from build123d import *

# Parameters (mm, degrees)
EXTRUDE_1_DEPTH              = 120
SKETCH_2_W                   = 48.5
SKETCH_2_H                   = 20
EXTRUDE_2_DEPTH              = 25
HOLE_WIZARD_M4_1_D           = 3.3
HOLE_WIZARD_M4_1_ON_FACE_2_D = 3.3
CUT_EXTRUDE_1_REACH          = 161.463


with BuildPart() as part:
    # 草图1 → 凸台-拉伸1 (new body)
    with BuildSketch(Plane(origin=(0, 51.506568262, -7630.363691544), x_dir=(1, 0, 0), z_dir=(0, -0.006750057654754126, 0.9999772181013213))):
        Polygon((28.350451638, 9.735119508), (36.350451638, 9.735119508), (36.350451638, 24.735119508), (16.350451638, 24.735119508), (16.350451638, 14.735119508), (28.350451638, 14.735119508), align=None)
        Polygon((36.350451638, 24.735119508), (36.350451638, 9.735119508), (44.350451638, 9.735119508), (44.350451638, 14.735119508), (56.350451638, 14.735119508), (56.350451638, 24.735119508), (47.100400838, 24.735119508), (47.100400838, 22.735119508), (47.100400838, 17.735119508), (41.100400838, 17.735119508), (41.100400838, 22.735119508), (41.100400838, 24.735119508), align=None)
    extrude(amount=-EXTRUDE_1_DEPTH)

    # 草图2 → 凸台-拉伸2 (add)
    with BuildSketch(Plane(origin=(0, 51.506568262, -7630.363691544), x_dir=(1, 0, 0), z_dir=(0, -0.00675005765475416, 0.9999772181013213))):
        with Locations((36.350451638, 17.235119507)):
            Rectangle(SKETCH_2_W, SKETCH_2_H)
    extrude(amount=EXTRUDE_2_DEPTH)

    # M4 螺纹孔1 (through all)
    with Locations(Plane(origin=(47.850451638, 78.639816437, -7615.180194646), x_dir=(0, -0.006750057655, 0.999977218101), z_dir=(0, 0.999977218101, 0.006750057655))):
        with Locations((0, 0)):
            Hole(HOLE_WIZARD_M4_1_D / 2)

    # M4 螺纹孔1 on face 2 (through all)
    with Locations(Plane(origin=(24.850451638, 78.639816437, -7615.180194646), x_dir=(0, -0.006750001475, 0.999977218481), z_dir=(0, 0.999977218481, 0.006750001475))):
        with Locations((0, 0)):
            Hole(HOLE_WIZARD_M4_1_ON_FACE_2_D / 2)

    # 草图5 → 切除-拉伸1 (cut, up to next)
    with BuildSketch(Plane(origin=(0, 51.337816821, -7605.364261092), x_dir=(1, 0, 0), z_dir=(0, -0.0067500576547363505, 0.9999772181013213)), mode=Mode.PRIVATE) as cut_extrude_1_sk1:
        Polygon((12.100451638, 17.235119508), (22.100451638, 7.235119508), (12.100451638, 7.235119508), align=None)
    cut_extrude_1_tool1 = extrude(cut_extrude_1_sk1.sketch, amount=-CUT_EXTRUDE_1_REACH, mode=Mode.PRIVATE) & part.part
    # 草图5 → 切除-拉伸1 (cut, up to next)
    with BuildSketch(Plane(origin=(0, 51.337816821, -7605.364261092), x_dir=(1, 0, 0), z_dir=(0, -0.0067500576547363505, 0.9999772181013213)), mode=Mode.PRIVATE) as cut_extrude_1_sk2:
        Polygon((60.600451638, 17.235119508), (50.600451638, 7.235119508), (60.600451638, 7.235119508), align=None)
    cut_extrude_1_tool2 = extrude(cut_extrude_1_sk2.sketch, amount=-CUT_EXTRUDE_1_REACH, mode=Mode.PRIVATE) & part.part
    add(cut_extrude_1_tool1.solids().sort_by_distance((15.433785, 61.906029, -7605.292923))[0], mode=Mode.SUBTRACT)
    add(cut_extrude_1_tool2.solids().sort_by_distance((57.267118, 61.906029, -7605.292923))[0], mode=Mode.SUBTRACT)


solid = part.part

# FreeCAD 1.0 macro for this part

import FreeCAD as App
import Part
import Sketcher
from FreeCAD import Vector

doc = App.newDocument("Part")
body = doc.addObject("PartDesign::Body", "Body")

# Sketch on an angled plane
sketch1 = body.newObject("Sketcher::SketchObject", "Sketch")
sketch1.Placement = App.Placement(Vector(0, 51.506568, -7630.363692), App.Rotation(Vector(1, 0, 0), Vector(0, 0.999977218, 0.006750058), Vector(0, -0.006750058, 0.999977218), "ZXY"))
sketch1.addGeometry([
    Part.LineSegment(Vector(28.4, 9.7, 0), Vector(44.4, 9.7, 0)),  # 0
    Part.LineSegment(Vector(44.4, 9.7, 0), Vector(44.4, 14.7, 0)),  # 1
    Part.LineSegment(Vector(44.4, 14.7, 0), Vector(56.4, 14.7, 0)),  # 2
    Part.LineSegment(Vector(56.4, 14.7, 0), Vector(56.4, 24.7, 0)),  # 3
    Part.LineSegment(Vector(56.4, 24.7, 0), Vector(47.1, 24.7, 0)),  # 4
    Part.LineSegment(Vector(47.1, 24.7, 0), Vector(47.1, 17.7, 0)),  # 5
    Part.LineSegment(Vector(47.1, 17.7, 0), Vector(41.1, 17.7, 0)),  # 6
    Part.LineSegment(Vector(41.1, 17.7, 0), Vector(41.1, 24.7, 0)),  # 7
    Part.LineSegment(Vector(41.1, 24.7, 0), Vector(16.4, 24.7, 0)),  # 8
    Part.LineSegment(Vector(16.4, 24.7, 0), Vector(16.4, 14.7, 0)),  # 9
    Part.LineSegment(Vector(16.4, 14.7, 0), Vector(28.4, 14.7, 0)),  # 10
    Part.LineSegment(Vector(28.4, 14.7, 0), Vector(28.4, 9.7, 0)),  # 11
], False)
sketch1.addConstraint([
    Sketcher.Constraint("Coincident", 0, 2, 1, 1),
    Sketcher.Constraint("Coincident", 1, 2, 2, 1),
    Sketcher.Constraint("Coincident", 2, 2, 3, 1),
    Sketcher.Constraint("Coincident", 3, 2, 4, 1),
    Sketcher.Constraint("Coincident", 4, 2, 5, 1),
    Sketcher.Constraint("Coincident", 5, 2, 6, 1),
    Sketcher.Constraint("Coincident", 6, 2, 7, 1),
    Sketcher.Constraint("Coincident", 7, 2, 8, 1),
    Sketcher.Constraint("Coincident", 8, 2, 9, 1),
    Sketcher.Constraint("Coincident", 9, 2, 10, 1),
    Sketcher.Constraint("Coincident", 10, 2, 11, 1),
    Sketcher.Constraint("Coincident", 11, 2, 0, 1),
    Sketcher.Constraint("Horizontal", 0),
    Sketcher.Constraint("Vertical", 1),
    Sketcher.Constraint("Horizontal", 2),
    Sketcher.Constraint("Vertical", 3),
    Sketcher.Constraint("Horizontal", 4),
    Sketcher.Constraint("Vertical", 5),
    Sketcher.Constraint("Horizontal", 6),
    Sketcher.Constraint("Vertical", 7),
    Sketcher.Constraint("Horizontal", 8),
    Sketcher.Constraint("Vertical", 9),
    Sketcher.Constraint("Horizontal", 10),
    Sketcher.Constraint("Vertical", 11),
    Sketcher.Constraint("Horizontal", 4, 2, 7, 2),
    Sketcher.Constraint("Horizontal", 2, 2, 9, 2),
    Sketcher.Constraint("Equal", 2, 10),
    Sketcher.Constraint("DistanceX", 0, 1, 0, 2, 16.0),
    Sketcher.Constraint("DistanceX", 2, 1, 2, 2, 12.0),
    Sketcher.Constraint("DistanceX", 6, 2, 6, 1, 6.0),
    Sketcher.Constraint("DistanceY", 1, 1, 1, 2, 5.0),
    Sketcher.Constraint("DistanceY", 3, 1, 3, 2, 10.0),
    Sketcher.Constraint("DistanceY", 5, 2, 5, 1, 7.0),
    Sketcher.Constraint("DistanceX", 4, 2, 4, 1, 9.250051),
    Sketcher.Constraint("DistanceX", -1, 1, 4, 2, 47.100401),
    Sketcher.Constraint("DistanceY", -1, 1, 0, 2, 9.73512),
])
pad1 = body.newObject("PartDesign::Pad", "Pad")
pad1.Profile = sketch1
pad1.Length = 120
pad1.Reversed = True

# Sketch on an angled plane
sketch2 = body.newObject("Sketcher::SketchObject", "Sketch001")
sketch2.Placement = App.Placement(Vector(0, 51.506568, -7630.363692), App.Rotation(Vector(1, 0, 0), Vector(0, 0.999977218, 0.006750058), Vector(0, -0.006750058, 0.999977218), "ZXY"))
sketch2.addGeometry([
    Part.LineSegment(Vector(12, 27, 0), Vector(12, 7, 0)),
    Part.LineSegment(Vector(12, 7, 0), Vector(61, 7, 0)),
    Part.LineSegment(Vector(61, 7, 0), Vector(61, 27, 0)),
    Part.LineSegment(Vector(61, 27, 0), Vector(12, 27, 0)),
], False)
sketch2.addConstraint([
    Sketcher.Constraint("Coincident", 0, 2, 1, 1),
    Sketcher.Constraint("Coincident", 1, 2, 2, 1),
    Sketcher.Constraint("Coincident", 2, 2, 3, 1),
    Sketcher.Constraint("Coincident", 3, 2, 0, 1),
    Sketcher.Constraint("Vertical", 0),
    Sketcher.Constraint("Horizontal", 1),
    Sketcher.Constraint("Vertical", 2),
    Sketcher.Constraint("Horizontal", 3),
    Sketcher.Constraint("DistanceY", 0, 2, 0, 1, 20.0),
    Sketcher.Constraint("DistanceX", 1, 1, 1, 2, 48.5),
    Sketcher.Constraint("DistanceX", -1, 1, 0, 2, 12.100452),
    Sketcher.Constraint("DistanceY", -1, 1, 0, 2, 7.23512),
])
pad2 = body.newObject("PartDesign::Pad", "Pad001")
pad2.Profile = sketch2
pad2.Length = 25

# Sketch on an angled plane
sketch3 = body.newObject("Sketcher::SketchObject", "Sketch002")
sketch3.Placement = App.Placement(Vector(0, 27.234499, 0.183839), App.Rotation(Vector(0, -0.006750058, 0.999977218), Vector(1, 0, 0), Vector(0, 0.999977218, 0.006750058), "ZXY"))
sketch3.addGeometry(Part.Circle(Vector(-7615.5, 47.9, 0), Vector(0, 0, 1), 1.6), False)
sketch3.addConstraint([
    Sketcher.Constraint("Diameter", 0, 3.3),
    Sketcher.Constraint("DistanceX", 0, 3, -1, 1, 7615.537528),
    Sketcher.Constraint("DistanceY", -1, 1, 0, 3, 47.850452),
])
doc.recompute()
hole = body.newObject("PartDesign::Hole", "Hole")
hole.Profile = sketch3
hole.ThreadType = "None"
hole.Diameter = 3.3
hole.DepthType = "ThroughAll"

# Sketch on an angled plane
sketch4 = body.newObject("Sketcher::SketchObject", "Sketch003")
sketch4.Placement = App.Placement(Vector(0, 27.234927, 0.18384), App.Rotation(Vector(0, -0.006750001, 0.999977218), Vector(0.999999999, 0, 0), Vector(0, 0.999977218, 0.006750001), "ZXY"))
sketch4.addGeometry(Part.Circle(Vector(-7615.5, 24.9, 0), Vector(0, 0, 1), 1.6), False)
sketch4.addConstraint([
    Sketcher.Constraint("Diameter", 0, 3.3),
    Sketcher.Constraint("DistanceX", 0, 3, -1, 1, 7615.537521),
    Sketcher.Constraint("DistanceY", -1, 1, 0, 3, 24.850452),
])
doc.recompute()
hole2 = body.newObject("PartDesign::Hole", "Hole001")
hole2.Profile = sketch4
hole2.ThreadType = "None"
hole2.Diameter = 3.3
hole2.DepthType = "ThroughAll"

# Sketch on an angled plane
sketch5 = body.newObject("Sketcher::SketchObject", "Sketch004")
sketch5.Placement = App.Placement(Vector(0, 51.337817, -7605.364261), App.Rotation(Vector(1, 0, 0), Vector(0, 0.999977218, 0.006750058), Vector(0, -0.006750058, 0.999977218), "ZXY"))
sketch5.addGeometry([
    Part.LineSegment(Vector(22, 7, 0), Vector(12, 17, 0)),
    Part.LineSegment(Vector(12, 17, 0), Vector(12, 7, 0)),
    Part.LineSegment(Vector(12, 7, 0), Vector(22, 7, 0)),
], False)
sketch5.addConstraint([
    Sketcher.Constraint("Coincident", 0, 2, 1, 1),
    Sketcher.Constraint("Coincident", 1, 2, 2, 1),
    Sketcher.Constraint("Coincident", 2, 2, 0, 1),
    Sketcher.Constraint("Vertical", 1),
    Sketcher.Constraint("Horizontal", 2),
    Sketcher.Constraint("Equal", 2, 1),
    Sketcher.Constraint("DistanceX", 2, 1, 2, 2, 10.0),
    Sketcher.Constraint("DistanceX", -1, 1, 0, 2, 12.100452),
    Sketcher.Constraint("DistanceY", -1, 1, 0, 2, 17.23512),
])
pocket1 = body.newObject("PartDesign::Pocket", "Pocket")
pocket1.Profile = sketch5
pocket1.Type = "UpToFirst"

# Sketch on an angled plane
sketch6 = body.newObject("Sketcher::SketchObject", "Sketch005")
sketch6.Placement = App.Placement(Vector(0, 51.337817, -7605.364261), App.Rotation(Vector(1, 0, 0), Vector(0, 0.999977218, 0.006750058), Vector(0, -0.006750058, 0.999977218), "ZXY"))
sketch6.addGeometry([
    Part.LineSegment(Vector(61, 17, 0), Vector(51, 7, 0)),
    Part.LineSegment(Vector(51, 7, 0), Vector(61, 7, 0)),
    Part.LineSegment(Vector(61, 7, 0), Vector(61, 17, 0)),
], False)
sketch6.addConstraint([
    Sketcher.Constraint("Coincident", 0, 2, 1, 1),
    Sketcher.Constraint("Coincident", 1, 2, 2, 1),
    Sketcher.Constraint("Coincident", 2, 2, 0, 1),
    Sketcher.Constraint("Horizontal", 1),
    Sketcher.Constraint("Vertical", 2),
    Sketcher.Constraint("Equal", 1, 2),
    Sketcher.Constraint("DistanceX", 1, 1, 1, 2, 10.0),
    Sketcher.Constraint("DistanceX", -1, 1, 0, 2, 50.600452),
    Sketcher.Constraint("DistanceY", -1, 1, 0, 2, 7.23512),
])
pocket2 = body.newObject("PartDesign::Pocket", "Pocket001")
pocket2.Profile = sketch6
pocket2.Type = "UpToFirst"

doc.recompute()
